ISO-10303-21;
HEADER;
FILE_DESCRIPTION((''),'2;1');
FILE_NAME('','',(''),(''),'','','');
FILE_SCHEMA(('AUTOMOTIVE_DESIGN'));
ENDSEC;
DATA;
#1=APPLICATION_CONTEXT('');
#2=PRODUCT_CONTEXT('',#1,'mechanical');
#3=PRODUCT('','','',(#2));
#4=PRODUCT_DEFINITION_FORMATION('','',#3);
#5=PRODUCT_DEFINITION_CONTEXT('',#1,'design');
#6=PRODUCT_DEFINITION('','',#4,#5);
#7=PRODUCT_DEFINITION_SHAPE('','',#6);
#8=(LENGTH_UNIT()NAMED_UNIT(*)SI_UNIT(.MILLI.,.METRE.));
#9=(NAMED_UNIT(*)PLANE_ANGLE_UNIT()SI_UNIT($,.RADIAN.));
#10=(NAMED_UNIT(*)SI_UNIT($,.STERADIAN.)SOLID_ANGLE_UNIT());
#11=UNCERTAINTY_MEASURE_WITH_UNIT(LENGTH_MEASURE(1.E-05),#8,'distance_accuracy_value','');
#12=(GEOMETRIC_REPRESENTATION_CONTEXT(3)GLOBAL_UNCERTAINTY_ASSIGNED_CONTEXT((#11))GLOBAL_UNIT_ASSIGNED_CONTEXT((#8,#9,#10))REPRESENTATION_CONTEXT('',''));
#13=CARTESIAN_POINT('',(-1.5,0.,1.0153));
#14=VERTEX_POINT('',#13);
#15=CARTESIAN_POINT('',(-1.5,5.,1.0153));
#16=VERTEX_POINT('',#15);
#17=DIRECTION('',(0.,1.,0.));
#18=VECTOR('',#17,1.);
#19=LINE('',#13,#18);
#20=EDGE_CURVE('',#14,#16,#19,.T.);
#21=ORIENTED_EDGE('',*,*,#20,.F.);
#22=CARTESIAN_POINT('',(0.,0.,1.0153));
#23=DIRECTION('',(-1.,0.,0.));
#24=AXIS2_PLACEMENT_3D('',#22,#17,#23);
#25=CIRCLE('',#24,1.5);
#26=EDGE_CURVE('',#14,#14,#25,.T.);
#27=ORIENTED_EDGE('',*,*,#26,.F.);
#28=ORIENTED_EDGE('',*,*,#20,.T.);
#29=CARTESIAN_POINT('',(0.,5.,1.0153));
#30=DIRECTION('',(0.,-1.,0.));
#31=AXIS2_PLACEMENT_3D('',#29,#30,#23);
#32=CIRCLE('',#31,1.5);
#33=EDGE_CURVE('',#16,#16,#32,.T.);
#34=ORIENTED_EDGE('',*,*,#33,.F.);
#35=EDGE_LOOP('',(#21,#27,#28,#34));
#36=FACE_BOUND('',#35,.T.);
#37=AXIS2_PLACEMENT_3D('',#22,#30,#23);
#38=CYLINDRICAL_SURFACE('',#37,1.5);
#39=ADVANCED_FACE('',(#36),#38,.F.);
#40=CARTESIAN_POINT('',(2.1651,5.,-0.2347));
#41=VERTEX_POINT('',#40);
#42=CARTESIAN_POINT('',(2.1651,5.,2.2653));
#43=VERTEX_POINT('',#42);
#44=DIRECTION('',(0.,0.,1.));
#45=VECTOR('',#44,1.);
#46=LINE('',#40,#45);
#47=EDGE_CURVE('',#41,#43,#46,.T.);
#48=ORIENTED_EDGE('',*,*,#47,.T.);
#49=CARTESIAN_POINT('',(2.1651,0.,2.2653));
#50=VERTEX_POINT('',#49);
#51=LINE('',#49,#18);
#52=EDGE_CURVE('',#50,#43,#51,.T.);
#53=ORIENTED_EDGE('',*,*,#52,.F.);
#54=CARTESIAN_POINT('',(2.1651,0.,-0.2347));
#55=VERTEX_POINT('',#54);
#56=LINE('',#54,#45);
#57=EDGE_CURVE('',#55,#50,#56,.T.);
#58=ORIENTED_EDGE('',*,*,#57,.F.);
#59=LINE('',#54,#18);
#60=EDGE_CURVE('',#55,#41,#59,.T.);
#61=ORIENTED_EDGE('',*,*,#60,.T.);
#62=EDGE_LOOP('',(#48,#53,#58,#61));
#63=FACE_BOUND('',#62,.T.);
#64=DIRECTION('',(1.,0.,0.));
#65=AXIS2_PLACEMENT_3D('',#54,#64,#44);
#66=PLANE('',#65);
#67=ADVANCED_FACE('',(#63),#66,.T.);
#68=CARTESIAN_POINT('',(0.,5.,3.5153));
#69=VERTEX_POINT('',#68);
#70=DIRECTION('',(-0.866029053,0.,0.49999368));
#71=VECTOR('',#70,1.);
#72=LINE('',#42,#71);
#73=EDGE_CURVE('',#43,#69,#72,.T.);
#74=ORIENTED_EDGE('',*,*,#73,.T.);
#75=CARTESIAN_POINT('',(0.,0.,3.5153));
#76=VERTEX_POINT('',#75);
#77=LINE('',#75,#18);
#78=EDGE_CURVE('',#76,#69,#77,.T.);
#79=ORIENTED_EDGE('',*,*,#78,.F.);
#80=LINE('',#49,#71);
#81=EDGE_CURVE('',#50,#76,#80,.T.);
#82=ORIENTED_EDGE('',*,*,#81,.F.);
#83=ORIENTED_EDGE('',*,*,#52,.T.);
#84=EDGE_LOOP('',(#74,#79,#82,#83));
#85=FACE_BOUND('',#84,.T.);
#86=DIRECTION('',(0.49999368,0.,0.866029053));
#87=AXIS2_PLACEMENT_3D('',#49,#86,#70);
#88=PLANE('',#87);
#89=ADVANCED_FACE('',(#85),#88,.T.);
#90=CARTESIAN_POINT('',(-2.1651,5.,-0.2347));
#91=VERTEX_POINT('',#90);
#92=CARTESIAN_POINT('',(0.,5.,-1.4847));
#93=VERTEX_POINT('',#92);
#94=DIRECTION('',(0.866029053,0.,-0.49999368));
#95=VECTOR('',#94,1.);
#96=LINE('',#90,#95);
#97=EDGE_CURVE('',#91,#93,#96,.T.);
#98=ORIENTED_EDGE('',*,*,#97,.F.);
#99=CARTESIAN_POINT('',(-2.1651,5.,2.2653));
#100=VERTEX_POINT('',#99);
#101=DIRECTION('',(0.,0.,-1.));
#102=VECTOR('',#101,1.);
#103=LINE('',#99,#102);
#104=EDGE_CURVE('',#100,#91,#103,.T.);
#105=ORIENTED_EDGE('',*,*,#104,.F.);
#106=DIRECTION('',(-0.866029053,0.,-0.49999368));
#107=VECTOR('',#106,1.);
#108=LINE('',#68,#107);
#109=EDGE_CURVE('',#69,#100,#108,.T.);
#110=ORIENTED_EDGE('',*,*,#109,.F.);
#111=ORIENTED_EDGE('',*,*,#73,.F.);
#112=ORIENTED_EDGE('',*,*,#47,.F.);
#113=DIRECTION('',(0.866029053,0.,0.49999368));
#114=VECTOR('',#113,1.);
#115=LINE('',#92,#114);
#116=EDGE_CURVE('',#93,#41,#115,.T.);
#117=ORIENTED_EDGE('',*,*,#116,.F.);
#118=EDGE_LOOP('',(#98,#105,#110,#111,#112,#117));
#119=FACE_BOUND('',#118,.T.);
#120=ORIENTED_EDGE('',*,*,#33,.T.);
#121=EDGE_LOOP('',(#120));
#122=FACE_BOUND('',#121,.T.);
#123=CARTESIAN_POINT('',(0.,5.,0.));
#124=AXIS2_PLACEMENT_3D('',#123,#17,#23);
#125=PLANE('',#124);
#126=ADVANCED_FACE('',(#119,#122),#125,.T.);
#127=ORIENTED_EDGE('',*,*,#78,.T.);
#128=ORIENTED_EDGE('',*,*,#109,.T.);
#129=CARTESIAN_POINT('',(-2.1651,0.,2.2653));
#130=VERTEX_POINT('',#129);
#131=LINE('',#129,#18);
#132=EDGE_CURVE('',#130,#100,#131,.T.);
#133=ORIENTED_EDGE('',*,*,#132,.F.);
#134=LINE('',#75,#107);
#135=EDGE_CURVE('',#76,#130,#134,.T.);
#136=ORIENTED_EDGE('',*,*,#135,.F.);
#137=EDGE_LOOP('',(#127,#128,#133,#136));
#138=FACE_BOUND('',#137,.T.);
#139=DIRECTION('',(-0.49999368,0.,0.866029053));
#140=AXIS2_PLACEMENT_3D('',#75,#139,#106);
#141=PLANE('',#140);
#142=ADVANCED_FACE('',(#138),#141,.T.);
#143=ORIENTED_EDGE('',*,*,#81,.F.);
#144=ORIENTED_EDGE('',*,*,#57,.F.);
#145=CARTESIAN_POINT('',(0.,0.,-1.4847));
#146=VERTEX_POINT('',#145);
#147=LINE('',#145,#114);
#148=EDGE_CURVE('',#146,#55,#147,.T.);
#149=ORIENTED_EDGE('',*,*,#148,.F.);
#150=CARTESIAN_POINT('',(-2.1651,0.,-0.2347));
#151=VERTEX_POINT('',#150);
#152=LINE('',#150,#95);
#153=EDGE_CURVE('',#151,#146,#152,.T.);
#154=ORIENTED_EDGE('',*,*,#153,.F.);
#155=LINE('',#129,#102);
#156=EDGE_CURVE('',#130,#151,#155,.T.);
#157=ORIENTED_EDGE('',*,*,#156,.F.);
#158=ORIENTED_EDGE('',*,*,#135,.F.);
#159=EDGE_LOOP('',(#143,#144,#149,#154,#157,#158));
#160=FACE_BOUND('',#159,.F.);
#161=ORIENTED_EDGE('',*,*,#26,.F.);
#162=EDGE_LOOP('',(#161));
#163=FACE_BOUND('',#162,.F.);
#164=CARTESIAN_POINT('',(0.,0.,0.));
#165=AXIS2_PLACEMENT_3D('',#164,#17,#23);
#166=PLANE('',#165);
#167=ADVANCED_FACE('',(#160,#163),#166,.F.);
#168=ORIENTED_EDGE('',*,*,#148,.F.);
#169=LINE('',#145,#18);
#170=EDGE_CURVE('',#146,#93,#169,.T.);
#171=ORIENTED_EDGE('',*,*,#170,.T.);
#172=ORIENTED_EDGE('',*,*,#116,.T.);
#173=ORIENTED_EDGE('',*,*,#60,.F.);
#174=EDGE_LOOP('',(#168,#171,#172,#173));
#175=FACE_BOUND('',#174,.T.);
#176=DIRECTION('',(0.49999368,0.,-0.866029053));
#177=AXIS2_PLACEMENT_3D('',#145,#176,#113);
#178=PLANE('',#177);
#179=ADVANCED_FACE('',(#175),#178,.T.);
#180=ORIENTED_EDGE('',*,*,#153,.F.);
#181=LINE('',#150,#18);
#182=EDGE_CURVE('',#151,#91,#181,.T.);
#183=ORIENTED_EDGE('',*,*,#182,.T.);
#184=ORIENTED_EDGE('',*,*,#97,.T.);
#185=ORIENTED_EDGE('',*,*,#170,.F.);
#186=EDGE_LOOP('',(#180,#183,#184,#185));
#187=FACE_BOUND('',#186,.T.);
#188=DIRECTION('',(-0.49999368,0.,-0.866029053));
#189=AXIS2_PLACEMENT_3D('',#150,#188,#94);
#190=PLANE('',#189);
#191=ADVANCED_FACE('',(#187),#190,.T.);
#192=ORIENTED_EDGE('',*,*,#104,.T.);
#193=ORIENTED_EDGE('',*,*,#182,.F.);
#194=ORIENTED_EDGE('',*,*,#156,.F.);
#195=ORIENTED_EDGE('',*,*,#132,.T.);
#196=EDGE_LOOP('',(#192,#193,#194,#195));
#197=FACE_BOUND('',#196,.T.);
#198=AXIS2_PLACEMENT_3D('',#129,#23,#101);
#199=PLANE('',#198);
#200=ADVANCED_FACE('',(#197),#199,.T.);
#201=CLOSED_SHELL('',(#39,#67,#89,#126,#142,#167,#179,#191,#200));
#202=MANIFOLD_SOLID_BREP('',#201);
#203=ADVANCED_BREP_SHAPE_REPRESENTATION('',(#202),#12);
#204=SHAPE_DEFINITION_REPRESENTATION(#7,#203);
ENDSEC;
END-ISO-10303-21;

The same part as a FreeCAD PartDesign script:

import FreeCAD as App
import Part
import Sketcher
from FreeCAD import Vector
Q = App.Units.Quantity

doc = App.newDocument("Part")
body = doc.addObject("PartDesign::Body", "Body")

# Sketch on XZ plane
sketch1 = body.newObject("Sketcher::SketchObject", "Sketch")
sketch1.AttachmentSupport = (doc.getObject("XZ_Plane"), [""])
sketch1.MapMode = "FlatFace"
sketch1.addGeometry([
    Part.LineSegment(Vector(-2.2, 2.3, 0), Vector(0, 3.5, 0)),  # 0
    Part.LineSegment(Vector(0, 3.5, 0), Vector(2.2, 2.3, 0)),  # 1
    Part.LineSegment(Vector(2.2, 2.3, 0), Vector(2.2, -0.2, 0)),  # 2
    Part.LineSegment(Vector(2.2, -0.2, 0), Vector(0, -1.5, 0)),  # 3
    Part.LineSegment(Vector(0, -1.5, 0), Vector(-2.2, -0.2, 0)),  # 4
    Part.LineSegment(Vector(-2.2, -0.2, 0), Vector(-2.2, 2.3, 0)),  # 5
    Part.Circle(Vector(0, 1, 0), Vector(0, 0, 1), 1.5),  # 6
], False)
sketch1.addConstraint([
    Sketcher.Constraint("Coincident", 0, 2, 1, 1),
    Sketcher.Constraint("Coincident", 1, 2, 2, 1),
    Sketcher.Constraint("Coincident", 2, 2, 3, 1),
    Sketcher.Constraint("Coincident", 3, 2, 4, 1),
    Sketcher.Constraint("Coincident", 4, 2, 5, 1),
    Sketcher.Constraint("Coincident", 5, 2, 0, 1),
    Sketcher.Constraint("Vertical", 2),
    Sketcher.Constraint("Vertical", 5),
    Sketcher.Constraint("Symmetric", 2, 2, 4, 2, -2),
    Sketcher.Constraint("PointOnObject", 6, 3, -2),
    Sketcher.Constraint("PointOnObject", 0, 2, -2),
    Sketcher.Constraint("PointOnObject", 3, 2, -2),
    Sketcher.Constraint("Parallel", 0, 3),
    Sketcher.Constraint("Parallel", 1, 4),
    Sketcher.Constraint("Diameter", 6, 3.0),
    Sketcher.Constraint("DistanceY", 3, 2, 0, 2, 5.0),
    Sketcher.Constraint("Angle", 0, Q("29.9996 deg")),
    Sketcher.Constraint("DistanceY", 2, 2, 2, 1, 2.5),
    Sketcher.Constraint("DistanceY", 6, 3, 0, 2, 2.5),
    Sketcher.Constraint("DistanceY", -1, 1, 6, 3, 1.0153),
])
pad1 = body.newObject("PartDesign::Pad", "Pad")
pad1.Profile = sketch1
pad1.Length = 5
pad1.Reversed = True

doc.recompute()
